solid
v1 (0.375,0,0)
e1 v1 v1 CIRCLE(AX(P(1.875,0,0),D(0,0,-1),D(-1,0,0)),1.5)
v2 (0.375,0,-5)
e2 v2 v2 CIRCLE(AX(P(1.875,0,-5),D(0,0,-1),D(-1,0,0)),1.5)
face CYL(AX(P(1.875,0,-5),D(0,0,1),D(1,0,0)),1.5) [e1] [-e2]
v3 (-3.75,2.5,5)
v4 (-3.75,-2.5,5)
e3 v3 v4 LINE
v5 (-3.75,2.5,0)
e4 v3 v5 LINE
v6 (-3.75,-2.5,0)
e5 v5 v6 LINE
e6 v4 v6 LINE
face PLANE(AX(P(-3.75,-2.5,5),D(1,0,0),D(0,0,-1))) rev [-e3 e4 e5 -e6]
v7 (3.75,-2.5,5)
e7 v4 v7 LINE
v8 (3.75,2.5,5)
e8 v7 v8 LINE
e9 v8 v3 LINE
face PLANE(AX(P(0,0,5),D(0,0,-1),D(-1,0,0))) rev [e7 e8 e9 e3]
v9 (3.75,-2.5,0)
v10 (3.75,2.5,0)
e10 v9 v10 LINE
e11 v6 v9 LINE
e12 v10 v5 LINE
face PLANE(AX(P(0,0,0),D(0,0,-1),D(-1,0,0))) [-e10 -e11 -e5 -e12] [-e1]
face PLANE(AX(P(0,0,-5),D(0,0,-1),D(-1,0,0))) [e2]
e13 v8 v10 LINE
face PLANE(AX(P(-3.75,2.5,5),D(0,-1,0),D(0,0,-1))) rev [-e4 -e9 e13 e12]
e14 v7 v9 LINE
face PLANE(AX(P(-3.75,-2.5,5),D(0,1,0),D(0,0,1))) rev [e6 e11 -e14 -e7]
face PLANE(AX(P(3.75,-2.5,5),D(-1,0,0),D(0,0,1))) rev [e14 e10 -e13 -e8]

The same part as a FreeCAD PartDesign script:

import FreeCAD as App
import Part
import Sketcher

V = App.Vector

doc = App.newDocument("Part")
body = doc.addObject("PartDesign::Body", "Body")

sketch1 = body.newObject("Sketcher::SketchObject", "Sketch")
sketch1.AttachmentSupport = (doc.getObject("XY_Plane"), [""])
sketch1.MapMode = "FlatFace"
sketch1.addGeometry([
    Part.LineSegment(V(-4, 2, 0), V(-4, -2, 0)),
    Part.LineSegment(V(-4, -2, 0), V(4, -2, 0)),
    Part.LineSegment(V(4, -2, 0), V(4, 2, 0)),
    Part.LineSegment(V(4, 2, 0), V(-4, 2, 0)),
], False)
sketch1.addConstraint([
    Sketcher.Constraint("Coincident", 0, 2, 1, 1),
    Sketcher.Constraint("Coincident", 1, 2, 2, 1),
    Sketcher.Constraint("Coincident", 2, 2, 3, 1),
    Sketcher.Constraint("Coincident", 3, 2, 0, 1),
    Sketcher.Constraint("Vertical", 0),
    Sketcher.Constraint("Horizontal", 1),
    Sketcher.Constraint("Vertical", 2),
    Sketcher.Constraint("Horizontal", 3),
    Sketcher.Constraint("Symmetric", 0, 2, 2, 2, -1, 1),
    Sketcher.Constraint("DistanceY", 0, 2, 0, 1, 5.0),
    Sketcher.Constraint("DistanceX", 1, 1, 1, 2, 7.5),
])
pad1 = body.newObject("PartDesign::Pad", "Pad")
pad1.Profile = sketch1
pad1.Length = 5

sketch2 = body.newObject("Sketcher::SketchObject", "Sketch001")
sketch2.AttachmentSupport = (doc.getObject("XY_Plane"), [""])
sketch2.MapMode = "FlatFace"
sketch2.addGeometry(Part.Circle(V(1.9, 0, 0), V(0, 0, 1), 1.5), False)
sketch2.addConstraint([
    Sketcher.Constraint("PointOnObject", 0, 3, -1),
    Sketcher.Constraint("Diameter", 0, 3.0),
    Sketcher.Constraint("DistanceX", -1, 1, 0, 3, 1.875),
])
pad2 = body.newObject("PartDesign::Pad", "Pad001")
pad2.Profile = sketch2
pad2.Length = 5
pad2.Reversed = True

doc.recompute()
